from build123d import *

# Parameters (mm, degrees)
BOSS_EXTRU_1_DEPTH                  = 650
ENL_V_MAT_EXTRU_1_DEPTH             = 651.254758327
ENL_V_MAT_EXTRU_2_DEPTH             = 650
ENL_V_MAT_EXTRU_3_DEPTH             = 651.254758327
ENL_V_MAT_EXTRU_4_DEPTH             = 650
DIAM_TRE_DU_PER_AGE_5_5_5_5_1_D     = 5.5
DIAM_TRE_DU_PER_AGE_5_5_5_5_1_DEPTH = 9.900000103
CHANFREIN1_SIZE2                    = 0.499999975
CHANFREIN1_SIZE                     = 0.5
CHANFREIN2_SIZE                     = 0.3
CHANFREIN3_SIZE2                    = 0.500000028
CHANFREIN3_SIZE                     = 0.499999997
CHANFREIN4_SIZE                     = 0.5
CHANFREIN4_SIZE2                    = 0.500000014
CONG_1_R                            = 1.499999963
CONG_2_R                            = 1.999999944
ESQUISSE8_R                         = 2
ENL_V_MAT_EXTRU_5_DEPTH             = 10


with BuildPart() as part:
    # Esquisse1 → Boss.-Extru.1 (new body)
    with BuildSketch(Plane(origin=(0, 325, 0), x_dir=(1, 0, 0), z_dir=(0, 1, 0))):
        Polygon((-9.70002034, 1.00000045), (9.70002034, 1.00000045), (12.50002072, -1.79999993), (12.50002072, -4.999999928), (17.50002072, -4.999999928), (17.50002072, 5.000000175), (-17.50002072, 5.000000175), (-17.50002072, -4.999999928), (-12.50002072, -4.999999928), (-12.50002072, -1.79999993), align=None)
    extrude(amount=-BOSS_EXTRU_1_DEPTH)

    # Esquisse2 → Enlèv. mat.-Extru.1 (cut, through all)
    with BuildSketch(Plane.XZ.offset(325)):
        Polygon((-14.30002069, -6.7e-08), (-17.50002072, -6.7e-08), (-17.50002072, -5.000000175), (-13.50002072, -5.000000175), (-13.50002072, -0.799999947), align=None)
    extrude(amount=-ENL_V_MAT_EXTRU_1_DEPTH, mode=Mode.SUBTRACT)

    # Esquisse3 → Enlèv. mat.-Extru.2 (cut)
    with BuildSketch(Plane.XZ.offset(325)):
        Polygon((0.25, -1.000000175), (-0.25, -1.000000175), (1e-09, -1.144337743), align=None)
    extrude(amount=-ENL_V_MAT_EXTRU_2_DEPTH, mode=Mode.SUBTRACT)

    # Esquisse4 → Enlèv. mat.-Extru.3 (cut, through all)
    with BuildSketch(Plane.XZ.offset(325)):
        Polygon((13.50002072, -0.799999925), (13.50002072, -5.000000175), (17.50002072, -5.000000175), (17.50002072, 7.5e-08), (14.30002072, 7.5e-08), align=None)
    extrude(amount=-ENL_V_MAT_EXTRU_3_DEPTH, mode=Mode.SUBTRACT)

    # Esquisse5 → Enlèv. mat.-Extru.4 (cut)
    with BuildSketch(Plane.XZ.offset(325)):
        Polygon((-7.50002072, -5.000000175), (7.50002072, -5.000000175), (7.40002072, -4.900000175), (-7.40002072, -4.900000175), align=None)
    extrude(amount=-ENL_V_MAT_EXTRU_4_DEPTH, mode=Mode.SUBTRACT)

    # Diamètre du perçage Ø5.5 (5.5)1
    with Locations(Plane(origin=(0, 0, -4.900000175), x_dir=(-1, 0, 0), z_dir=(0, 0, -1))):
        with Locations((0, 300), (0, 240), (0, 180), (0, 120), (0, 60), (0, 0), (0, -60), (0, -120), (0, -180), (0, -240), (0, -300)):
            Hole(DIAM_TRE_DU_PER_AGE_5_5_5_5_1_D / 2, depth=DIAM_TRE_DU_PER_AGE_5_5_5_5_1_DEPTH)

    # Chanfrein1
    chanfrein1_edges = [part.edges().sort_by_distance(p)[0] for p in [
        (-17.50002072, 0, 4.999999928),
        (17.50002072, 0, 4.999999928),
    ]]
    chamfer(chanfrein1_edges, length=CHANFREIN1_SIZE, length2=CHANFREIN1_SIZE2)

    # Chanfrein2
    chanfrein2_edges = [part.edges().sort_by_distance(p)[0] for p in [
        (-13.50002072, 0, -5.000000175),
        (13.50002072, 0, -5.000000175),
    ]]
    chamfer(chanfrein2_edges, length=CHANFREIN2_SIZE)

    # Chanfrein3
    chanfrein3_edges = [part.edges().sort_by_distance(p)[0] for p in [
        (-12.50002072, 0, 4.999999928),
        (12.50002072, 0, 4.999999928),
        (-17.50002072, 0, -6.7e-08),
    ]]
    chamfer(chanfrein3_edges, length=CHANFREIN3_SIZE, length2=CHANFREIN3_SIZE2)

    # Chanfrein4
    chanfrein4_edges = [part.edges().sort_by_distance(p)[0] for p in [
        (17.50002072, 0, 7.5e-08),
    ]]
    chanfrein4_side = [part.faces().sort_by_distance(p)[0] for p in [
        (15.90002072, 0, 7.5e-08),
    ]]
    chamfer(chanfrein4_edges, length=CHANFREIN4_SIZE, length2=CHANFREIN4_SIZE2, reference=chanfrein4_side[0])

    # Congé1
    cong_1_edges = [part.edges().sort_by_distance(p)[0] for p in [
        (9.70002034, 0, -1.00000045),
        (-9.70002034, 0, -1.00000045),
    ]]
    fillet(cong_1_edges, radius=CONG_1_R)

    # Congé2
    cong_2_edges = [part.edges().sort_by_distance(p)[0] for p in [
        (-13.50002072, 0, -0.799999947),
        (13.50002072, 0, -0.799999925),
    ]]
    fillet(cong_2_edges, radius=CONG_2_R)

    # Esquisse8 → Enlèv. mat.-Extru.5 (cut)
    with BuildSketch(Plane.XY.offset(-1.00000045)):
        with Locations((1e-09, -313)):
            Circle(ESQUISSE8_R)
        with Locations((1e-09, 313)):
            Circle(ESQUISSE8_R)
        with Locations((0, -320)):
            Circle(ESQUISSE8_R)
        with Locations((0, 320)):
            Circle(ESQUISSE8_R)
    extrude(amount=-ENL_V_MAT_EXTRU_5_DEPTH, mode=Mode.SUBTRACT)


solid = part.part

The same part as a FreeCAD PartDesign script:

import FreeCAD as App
import Part
import Sketcher

V = App.Vector
Q = App.Units.Quantity


def edges_at(feature, points):
    """Names of the edges that pass closest to the given points."""
    edges = feature.Shape.Edges
    near = lambda p: min(range(len(edges)), key=lambda i: edges[i].distToShape(Part.Vertex(*p))[0])
    return sorted({f"Edge{near(p) + 1}" for p in points})

doc = App.newDocument("Part")
body = doc.addObject("PartDesign::Body", "Body")

sketch1 = doc.addObject("Sketcher::SketchObject", "Sketch")
body.addObject(sketch1)
sketch1.AttachmentSupport = (doc.XZ_Plane, [""])
sketch1.MapMode = "FlatFace"
sketch1.AttachmentOffset = App.Placement(V(0, 0, -325), App.Rotation())
sketch1.addGeometry([
    Part.LineSegment(V(-9.70002, -1, 0), V(9.70002, -1, 0)),
    Part.LineSegment(V(9.70002, -1, 0), V(12.500021, 1.8, 0)),
    Part.LineSegment(V(12.500021, 1.8, 0), V(12.500021, 5, 0)),
    Part.LineSegment(V(12.500021, 5, 0), V(17.500021, 5, 0)),
    Part.LineSegment(V(17.500021, 5, 0), V(17.500021, -5, 0)),
    Part.LineSegment(V(17.500021, -5, 0), V(-17.500021, -5, 0)),
    Part.LineSegment(V(-17.500021, -5, 0), V(-17.500021, 5, 0)),
    Part.LineSegment(V(-17.500021, 5, 0), V(-12.500021, 5, 0)),
    Part.LineSegment(V(-12.500021, 5, 0), V(-12.500021, 1.8, 0)),
    Part.LineSegment(V(-12.500021, 1.8, 0), V(-9.70002, -1, 0)),
], False)
sketch1.addConstraint([
    Sketcher.Constraint("Coincident", 0, 2, 1, 1),
    Sketcher.Constraint("Coincident", 1, 2, 2, 1),
    Sketcher.Constraint("Coincident", 2, 2, 3, 1),
    Sketcher.Constraint("Coincident", 3, 2, 4, 1),
    Sketcher.Constraint("Coincident", 4, 2, 5, 1),
    Sketcher.Constraint("Coincident", 5, 2, 6, 1),
    Sketcher.Constraint("Coincident", 6, 2, 7, 1),
    Sketcher.Constraint("Coincident", 7, 2, 8, 1),
    Sketcher.Constraint("Coincident", 8, 2, 9, 1),
    Sketcher.Constraint("Coincident", 9, 2, 0, 1),
    Sketcher.Constraint("Horizontal", 0),
    Sketcher.Constraint("Vertical", 2),
    Sketcher.Constraint("Horizontal", 3),
    Sketcher.Constraint("Vertical", 4),
    Sketcher.Constraint("Horizontal", 5),
    Sketcher.Constraint("Vertical", 6),
    Sketcher.Constraint("Horizontal", 7),
    Sketcher.Constraint("Vertical", 8),
    Sketcher.Constraint("Symmetric", 3, 2, 5, 2, -1, 1),
    Sketcher.Constraint("Symmetric", 2, 2, 7, 2, -2),
    Sketcher.Constraint("Perpendicular", 1, 9),
    Sketcher.Constraint("Horizontal", 1, 2, 8, 2),
    Sketcher.Constraint("Equal", 1, 9),
    Sketcher.Constraint("DistanceX", 3, 1, 3, 2, 5.0),
    Sketcher.Constraint("DistanceY", 4, 2, 4, 1, 10.0),
    Sketcher.Constraint("DistanceY", 2, 1, 2, 2, 3.2),
    Sketcher.Constraint("DistanceY", 0, 2, -1, 1, 1.0),
    Sketcher.Constraint("DistanceX", 0, 1, 0, 2, 19.400041),
])
pad1 = doc.addObject("PartDesign::Pad", "Pad")
body.addObject(pad1)
pad1.Profile = sketch1
pad1.Length = 650

sketch2 = doc.addObject("Sketcher::SketchObject", "Sketch001")
body.addObject(sketch2)
sketch2.AttachmentSupport = (doc.XZ_Plane, [""])
sketch2.MapMode = "FlatFace"
sketch2.AttachmentOffset = App.Placement(V(0, 0, 325), App.Rotation())
sketch2.addGeometry([
    Part.LineSegment(V(-14.300021, 0, 0), V(-17.500021, 0, 0)),
    Part.LineSegment(V(-17.500021, 0, 0), V(-17.500021, -5, 0)),
    Part.LineSegment(V(-17.500021, -5, 0), V(-13.500021, -5, 0)),
    Part.LineSegment(V(-13.500021, -5, 0), V(-13.500021, -0.8, 0)),
    Part.LineSegment(V(-13.500021, -0.8, 0), V(-14.300021, 0, 0)),
], False)
sketch2.addConstraint([
    Sketcher.Constraint("Coincident", 0, 2, 1, 1),
    Sketcher.Constraint("Coincident", 1, 2, 2, 1),
    Sketcher.Constraint("Coincident", 2, 2, 3, 1),
    Sketcher.Constraint("Coincident", 3, 2, 4, 1),
    Sketcher.Constraint("Coincident", 4, 2, 0, 1),
    Sketcher.Constraint("Horizontal", 0),
    Sketcher.Constraint("Vertical", 1),
    Sketcher.Constraint("Horizontal", 2),
    Sketcher.Constraint("Vertical", 3),
    Sketcher.Constraint("PointOnObject", 0, 2, -1),
    Sketcher.Constraint("DistanceX", 2, 1, 2, 2, 4.0),
    Sketcher.Constraint("DistanceY", 1, 2, 1, 1, 5.0),
    Sketcher.Constraint("Angle", 4, Q("135.000003 deg")),
    Sketcher.Constraint("DistanceX", 0, 2, 0, 1, 3.2),
    Sketcher.Constraint("DistanceX", 0, 2, -1, 1, 17.500021),
])
pocket1 = doc.addObject("PartDesign::Pocket", "Pocket")
body.addObject(pocket1)
pocket1.Profile = sketch2
pocket1.Type = "ThroughAll"

sketch3 = doc.addObject("Sketcher::SketchObject", "Sketch002")
body.addObject(sketch3)
sketch3.AttachmentSupport = (doc.XZ_Plane, [""])
sketch3.MapMode = "FlatFace"
sketch3.AttachmentOffset = App.Placement(V(0, 0, 325), App.Rotation())
sketch3.addGeometry([
    Part.LineSegment(V(0.25, -1, 0), V(-0.25, -1, 0)),
    Part.LineSegment(V(-0.25, -1, 0), V(0, -1.144338, 0)),
    Part.LineSegment(V(0, -1.144338, 0), V(0.25, -1, 0)),
], False)
sketch3.addConstraint([
    Sketcher.Constraint("Coincident", 0, 2, 1, 1),
    Sketcher.Constraint("Coincident", 1, 2, 2, 1),
    Sketcher.Constraint("Coincident", 2, 2, 0, 1),
    Sketcher.Constraint("Horizontal", 0),
    Sketcher.Constraint("PointOnObject", 1, 2, -2),
    Sketcher.Constraint("Equal", 1, 2),
    Sketcher.Constraint("Angle", 1, Q("-30 deg")),
    Sketcher.Constraint("DistanceX", 0, 2, 0, 1, 0.5),
    Sketcher.Constraint("DistanceY", 0, 2, -1, 1, 1.0),
])
pocket2 = doc.addObject("PartDesign::Pocket", "Pocket001")
body.addObject(pocket2)
pocket2.Profile = sketch3
pocket2.Length = 650

sketch4 = doc.addObject("Sketcher::SketchObject", "Sketch003")
body.addObject(sketch4)
sketch4.AttachmentSupport = (doc.XZ_Plane, [""])
sketch4.MapMode = "FlatFace"
sketch4.AttachmentOffset = App.Placement(V(0, 0, 325), App.Rotation())
sketch4.addGeometry([
    Part.LineSegment(V(13.500021, -0.8, 0), V(13.500021, -5, 0)),
    Part.LineSegment(V(13.500021, -5, 0), V(17.500021, -5, 0)),
    Part.LineSegment(V(17.500021, -5, 0), V(17.500021, 0, 0)),
    Part.LineSegment(V(17.500021, 0, 0), V(14.300021, 0, 0)),
    Part.LineSegment(V(14.300021, 0, 0), V(13.500021, -0.8, 0)),
], False)
sketch4.addConstraint([
    Sketcher.Constraint("Coincident", 0, 2, 1, 1),
    Sketcher.Constraint("Coincident", 1, 2, 2, 1),
    Sketcher.Constraint("Coincident", 2, 2, 3, 1),
    Sketcher.Constraint("Coincident", 3, 2, 4, 1),
    Sketcher.Constraint("Coincident", 4, 2, 0, 1),
    Sketcher.Constraint("Vertical", 0),
    Sketcher.Constraint("Horizontal", 1),
    Sketcher.Constraint("Vertical", 2),
    Sketcher.Constraint("Horizontal", 3),
    Sketcher.Constraint("PointOnObject", 2, 2, -1),
    Sketcher.Constraint("DistanceX", 1, 1, 1, 2, 4.0),
    Sketcher.Constraint("DistanceY", 2, 1, 2, 2, 5.0),
    Sketcher.Constraint("Angle", 4, Q("-135 deg")),
    Sketcher.Constraint("DistanceX", 3, 2, 3, 1, 3.2),
    Sketcher.Constraint("DistanceX", -1, 1, 0, 2, 13.500021),
])
pocket3 = doc.addObject("PartDesign::Pocket", "Pocket002")
body.addObject(pocket3)
pocket3.Profile = sketch4
pocket3.Type = "ThroughAll"

sketch5 = doc.addObject("Sketcher::SketchObject", "Sketch004")
body.addObject(sketch5)
sketch5.AttachmentSupport = (doc.XZ_Plane, [""])
sketch5.MapMode = "FlatFace"
sketch5.AttachmentOffset = App.Placement(V(0, 0, 325), App.Rotation())
sketch5.addGeometry([
    Part.LineSegment(V(-7.500021, -5, 0), V(7.500021, -5, 0)),
    Part.LineSegment(V(7.500021, -5, 0), V(7.400021, -4.9, 0)),
    Part.LineSegment(V(7.400021, -4.9, 0), V(-7.400021, -4.9, 0)),
    Part.LineSegment(V(-7.400021, -4.9, 0), V(-7.500021, -5, 0)),
], False)
sketch5.addConstraint([
    Sketcher.Constraint("Coincident", 0, 2, 1, 1),
    Sketcher.Constraint("Coincident", 1, 2, 2, 1),
    Sketcher.Constraint("Coincident", 2, 2, 3, 1),
    Sketcher.Constraint("Coincident", 3, 2, 0, 1),
    Sketcher.Constraint("Horizontal", 0),
    Sketcher.Constraint("Horizontal", 2),
    Sketcher.Constraint("Perpendicular", 1, 3),
    Sketcher.Constraint("Equal", 1, 3),
    Sketcher.Constraint("DistanceY", 0, 2, -1, 1, 5.0),
    Sketcher.Constraint("DistanceY", 1, 2, -1, 1, 4.9),
    Sketcher.Constraint("DistanceX", 0, 1, 0, 2, 15.000041),
    Sketcher.Constraint("DistanceX", -1, 1, 0, 2, 7.500021),
])
pocket4 = doc.addObject("PartDesign::Pocket", "Pocket003")
body.addObject(pocket4)
pocket4.Profile = sketch5
pocket4.Length = 650

sketch6 = doc.addObject("Sketcher::SketchObject", "Sketch005")
body.addObject(sketch6)
sketch6.AttachmentSupport = (doc.XY_Plane, [""])
sketch6.MapMode = "FlatFace"
sketch6.AttachmentOffset = App.Placement(V(0, 0, -4.9), App.Rotation())
sketch6.addGeometry([
    Part.Circle(V(0, 300, 0), V(0, 0, 1), 2.75),
    Part.Circle(V(0, 240, 0), V(0, 0, 1), 2.75),
    Part.Circle(V(0, 180, 0), V(0, 0, 1), 2.75),
    Part.Circle(V(0, 120, 0), V(0, 0, 1), 2.75),
    Part.Circle(V(0, 60, 0), V(0, 0, 1), 2.75),
    Part.Circle(V(0, 0, 0), V(0, 0, 1), 2.75),
    Part.Circle(V(0, -60, 0), V(0, 0, 1), 2.75),
    Part.Circle(V(0, -120, 0), V(0, 0, 1), 2.75),
    Part.Circle(V(0, -180, 0), V(0, 0, 1), 2.75),
    Part.Circle(V(0, -240, 0), V(0, 0, 1), 2.75),
    Part.Circle(V(0, -300, 0), V(0, 0, 1), 2.75),
], False)
sketch6.addConstraint([
    Sketcher.Constraint("Coincident", 5, 3, -1, 1),
    Sketcher.Constraint("Equal", 0, 1),
    Sketcher.Constraint("Equal", 1, 2),
    Sketcher.Constraint("Equal", 2, 3),
    Sketcher.Constraint("Equal", 3, 4),
    Sketcher.Constraint("Equal", 4, 5),
    Sketcher.Constraint("Equal", 5, 6),
    Sketcher.Constraint("Equal", 6, 7),
    Sketcher.Constraint("Equal", 7, 8),
    Sketcher.Constraint("Equal", 8, 9),
    Sketcher.Constraint("Equal", 9, 10),
    Sketcher.Constraint("Symmetric", 4, 3, 6, 3, -1, 1),
    Sketcher.Constraint("Symmetric", 3, 3, 7, 3, -1, 1),
    Sketcher.Constraint("Symmetric", 2, 3, 8, 3, -1, 1),
    Sketcher.Constraint("Symmetric", 1, 3, 9, 3, -1, 1),
    Sketcher.Constraint("Symmetric", 0, 3, 10, 3, -1, 1),
    Sketcher.Constraint("PointOnObject", 0, 3, -2),
    Sketcher.Constraint("PointOnObject", 1, 3, -2),
    Sketcher.Constraint("PointOnObject", 2, 3, -2),
    Sketcher.Constraint("PointOnObject", 3, 3, -2),
    Sketcher.Constraint("PointOnObject", 4, 3, -2),
    Sketcher.Constraint("Diameter", 0, 5.5),
    Sketcher.Constraint("DistanceY", -1, 1, 0, 3, 300.0),
    Sketcher.Constraint("DistanceY", -1, 1, 1, 3, 240.0),
    Sketcher.Constraint("DistanceY", -1, 1, 2, 3, 180.0),
    Sketcher.Constraint("DistanceY", -1, 1, 3, 3, 120.0),
    Sketcher.Constraint("DistanceY", -1, 1, 4, 3, 60.0),
])
doc.recompute()
hole = doc.addObject("PartDesign::Hole", "Hole")
body.addObject(hole)
hole.Profile = sketch6
hole.ThreadType = "None"
hole.Diameter = 5.5
hole.DepthType = "Dimension"
hole.Depth = 9.9
hole.DrillPoint = "Flat"
hole.Reversed = True
doc.recompute()

chamfer = doc.addObject("PartDesign::Chamfer", "Chamfer")
body.addObject(chamfer)
chamfer.Base = (hole, edges_at(hole, [(-17.5, 0, 5), (17.5, 0, 5)]))
chamfer.ChamferType = "Two distances"
chamfer.Size = 0.5
chamfer.Size2 = 0.5
doc.recompute()

chamfer2 = doc.addObject("PartDesign::Chamfer", "Chamfer001")
body.addObject(chamfer2)
chamfer2.Base = (chamfer, edges_at(chamfer, [(-13.5, 0, -5), (13.5, 0, -5)]))
chamfer2.Size = 0.3
doc.recompute()

chamfer3 = doc.addObject("PartDesign::Chamfer", "Chamfer002")
body.addObject(chamfer3)
chamfer3.Base = (chamfer2, edges_at(chamfer2, [(-12.5, 0, 5), (12.5, 0, 5), (-17.5, 0, 0)]))
chamfer3.ChamferType = "Two distances"
chamfer3.Size = 0.5
chamfer3.Size2 = 0.5
doc.recompute()

chamfer4 = doc.addObject("PartDesign::Chamfer", "Chamfer003")
body.addObject(chamfer4)
chamfer4.Base = (chamfer3, edges_at(chamfer3, [(17.5, 0, 0)]))
chamfer4.ChamferType = "Two distances"
chamfer4.Size = 0.5
chamfer4.Size2 = 0.5
doc.recompute()

fillet = doc.addObject("PartDesign::Fillet", "Fillet")
body.addObject(fillet)
fillet.Base = (chamfer4, edges_at(chamfer4, [(9.7, 0, -1), (-9.7, 0, -1)]))
fillet.Radius = 1.5
doc.recompute()

fillet2 = doc.addObject("PartDesign::Fillet", "Fillet001")
body.addObject(fillet2)
fillet2.Base = (fillet, edges_at(fillet, [(-13.5, 0, -0.8), (13.5, 0, -0.8)]))
fillet2.Radius = 2

sketch7 = doc.addObject("Sketcher::SketchObject", "Sketch006")
body.addObject(sketch7)
sketch7.AttachmentSupport = (doc.XY_Plane, [""])
sketch7.MapMode = "FlatFace"
sketch7.AttachmentOffset = App.Placement(V(0, 0, -1), App.Rotation())
sketch7.addGeometry([
    Part.Circle(V(0, -313, 0), V(0, 0, 1), 2),
    Part.Circle(V(0, 313, 0), V(0, 0, 1), 2),
    Part.Circle(V(0, -320, 0), V(0, 0, 1), 2),
    Part.Circle(V(0, 320, 0), V(0, 0, 1), 2),
], False)
sketch7.addConstraint([
    Sketcher.Constraint("Equal", 0, 1),
    Sketcher.Constraint("Equal", 1, 2),
    Sketcher.Constraint("Equal", 2, 3),
    Sketcher.Constraint("Symmetric", 0, 3, 1, 3, -1, 1),
    Sketcher.Constraint("Symmetric", 2, 3, 3, 3, -1, 1),
    Sketcher.Constraint("PointOnObject", 0, 3, -2),
    Sketcher.Constraint("PointOnObject", 2, 3, -2),
    Sketcher.Constraint("Diameter", 0, 4.0),
    Sketcher.Constraint("DistanceY", 0, 3, -1, 1, 313.0),
    Sketcher.Constraint("DistanceY", 2, 3, -1, 1, 320.0),
])
pocket5 = doc.addObject("PartDesign::Pocket", "Pocket004")
body.addObject(pocket5)
pocket5.Profile = sketch7
pocket5.Length = 10

doc.recompute()
